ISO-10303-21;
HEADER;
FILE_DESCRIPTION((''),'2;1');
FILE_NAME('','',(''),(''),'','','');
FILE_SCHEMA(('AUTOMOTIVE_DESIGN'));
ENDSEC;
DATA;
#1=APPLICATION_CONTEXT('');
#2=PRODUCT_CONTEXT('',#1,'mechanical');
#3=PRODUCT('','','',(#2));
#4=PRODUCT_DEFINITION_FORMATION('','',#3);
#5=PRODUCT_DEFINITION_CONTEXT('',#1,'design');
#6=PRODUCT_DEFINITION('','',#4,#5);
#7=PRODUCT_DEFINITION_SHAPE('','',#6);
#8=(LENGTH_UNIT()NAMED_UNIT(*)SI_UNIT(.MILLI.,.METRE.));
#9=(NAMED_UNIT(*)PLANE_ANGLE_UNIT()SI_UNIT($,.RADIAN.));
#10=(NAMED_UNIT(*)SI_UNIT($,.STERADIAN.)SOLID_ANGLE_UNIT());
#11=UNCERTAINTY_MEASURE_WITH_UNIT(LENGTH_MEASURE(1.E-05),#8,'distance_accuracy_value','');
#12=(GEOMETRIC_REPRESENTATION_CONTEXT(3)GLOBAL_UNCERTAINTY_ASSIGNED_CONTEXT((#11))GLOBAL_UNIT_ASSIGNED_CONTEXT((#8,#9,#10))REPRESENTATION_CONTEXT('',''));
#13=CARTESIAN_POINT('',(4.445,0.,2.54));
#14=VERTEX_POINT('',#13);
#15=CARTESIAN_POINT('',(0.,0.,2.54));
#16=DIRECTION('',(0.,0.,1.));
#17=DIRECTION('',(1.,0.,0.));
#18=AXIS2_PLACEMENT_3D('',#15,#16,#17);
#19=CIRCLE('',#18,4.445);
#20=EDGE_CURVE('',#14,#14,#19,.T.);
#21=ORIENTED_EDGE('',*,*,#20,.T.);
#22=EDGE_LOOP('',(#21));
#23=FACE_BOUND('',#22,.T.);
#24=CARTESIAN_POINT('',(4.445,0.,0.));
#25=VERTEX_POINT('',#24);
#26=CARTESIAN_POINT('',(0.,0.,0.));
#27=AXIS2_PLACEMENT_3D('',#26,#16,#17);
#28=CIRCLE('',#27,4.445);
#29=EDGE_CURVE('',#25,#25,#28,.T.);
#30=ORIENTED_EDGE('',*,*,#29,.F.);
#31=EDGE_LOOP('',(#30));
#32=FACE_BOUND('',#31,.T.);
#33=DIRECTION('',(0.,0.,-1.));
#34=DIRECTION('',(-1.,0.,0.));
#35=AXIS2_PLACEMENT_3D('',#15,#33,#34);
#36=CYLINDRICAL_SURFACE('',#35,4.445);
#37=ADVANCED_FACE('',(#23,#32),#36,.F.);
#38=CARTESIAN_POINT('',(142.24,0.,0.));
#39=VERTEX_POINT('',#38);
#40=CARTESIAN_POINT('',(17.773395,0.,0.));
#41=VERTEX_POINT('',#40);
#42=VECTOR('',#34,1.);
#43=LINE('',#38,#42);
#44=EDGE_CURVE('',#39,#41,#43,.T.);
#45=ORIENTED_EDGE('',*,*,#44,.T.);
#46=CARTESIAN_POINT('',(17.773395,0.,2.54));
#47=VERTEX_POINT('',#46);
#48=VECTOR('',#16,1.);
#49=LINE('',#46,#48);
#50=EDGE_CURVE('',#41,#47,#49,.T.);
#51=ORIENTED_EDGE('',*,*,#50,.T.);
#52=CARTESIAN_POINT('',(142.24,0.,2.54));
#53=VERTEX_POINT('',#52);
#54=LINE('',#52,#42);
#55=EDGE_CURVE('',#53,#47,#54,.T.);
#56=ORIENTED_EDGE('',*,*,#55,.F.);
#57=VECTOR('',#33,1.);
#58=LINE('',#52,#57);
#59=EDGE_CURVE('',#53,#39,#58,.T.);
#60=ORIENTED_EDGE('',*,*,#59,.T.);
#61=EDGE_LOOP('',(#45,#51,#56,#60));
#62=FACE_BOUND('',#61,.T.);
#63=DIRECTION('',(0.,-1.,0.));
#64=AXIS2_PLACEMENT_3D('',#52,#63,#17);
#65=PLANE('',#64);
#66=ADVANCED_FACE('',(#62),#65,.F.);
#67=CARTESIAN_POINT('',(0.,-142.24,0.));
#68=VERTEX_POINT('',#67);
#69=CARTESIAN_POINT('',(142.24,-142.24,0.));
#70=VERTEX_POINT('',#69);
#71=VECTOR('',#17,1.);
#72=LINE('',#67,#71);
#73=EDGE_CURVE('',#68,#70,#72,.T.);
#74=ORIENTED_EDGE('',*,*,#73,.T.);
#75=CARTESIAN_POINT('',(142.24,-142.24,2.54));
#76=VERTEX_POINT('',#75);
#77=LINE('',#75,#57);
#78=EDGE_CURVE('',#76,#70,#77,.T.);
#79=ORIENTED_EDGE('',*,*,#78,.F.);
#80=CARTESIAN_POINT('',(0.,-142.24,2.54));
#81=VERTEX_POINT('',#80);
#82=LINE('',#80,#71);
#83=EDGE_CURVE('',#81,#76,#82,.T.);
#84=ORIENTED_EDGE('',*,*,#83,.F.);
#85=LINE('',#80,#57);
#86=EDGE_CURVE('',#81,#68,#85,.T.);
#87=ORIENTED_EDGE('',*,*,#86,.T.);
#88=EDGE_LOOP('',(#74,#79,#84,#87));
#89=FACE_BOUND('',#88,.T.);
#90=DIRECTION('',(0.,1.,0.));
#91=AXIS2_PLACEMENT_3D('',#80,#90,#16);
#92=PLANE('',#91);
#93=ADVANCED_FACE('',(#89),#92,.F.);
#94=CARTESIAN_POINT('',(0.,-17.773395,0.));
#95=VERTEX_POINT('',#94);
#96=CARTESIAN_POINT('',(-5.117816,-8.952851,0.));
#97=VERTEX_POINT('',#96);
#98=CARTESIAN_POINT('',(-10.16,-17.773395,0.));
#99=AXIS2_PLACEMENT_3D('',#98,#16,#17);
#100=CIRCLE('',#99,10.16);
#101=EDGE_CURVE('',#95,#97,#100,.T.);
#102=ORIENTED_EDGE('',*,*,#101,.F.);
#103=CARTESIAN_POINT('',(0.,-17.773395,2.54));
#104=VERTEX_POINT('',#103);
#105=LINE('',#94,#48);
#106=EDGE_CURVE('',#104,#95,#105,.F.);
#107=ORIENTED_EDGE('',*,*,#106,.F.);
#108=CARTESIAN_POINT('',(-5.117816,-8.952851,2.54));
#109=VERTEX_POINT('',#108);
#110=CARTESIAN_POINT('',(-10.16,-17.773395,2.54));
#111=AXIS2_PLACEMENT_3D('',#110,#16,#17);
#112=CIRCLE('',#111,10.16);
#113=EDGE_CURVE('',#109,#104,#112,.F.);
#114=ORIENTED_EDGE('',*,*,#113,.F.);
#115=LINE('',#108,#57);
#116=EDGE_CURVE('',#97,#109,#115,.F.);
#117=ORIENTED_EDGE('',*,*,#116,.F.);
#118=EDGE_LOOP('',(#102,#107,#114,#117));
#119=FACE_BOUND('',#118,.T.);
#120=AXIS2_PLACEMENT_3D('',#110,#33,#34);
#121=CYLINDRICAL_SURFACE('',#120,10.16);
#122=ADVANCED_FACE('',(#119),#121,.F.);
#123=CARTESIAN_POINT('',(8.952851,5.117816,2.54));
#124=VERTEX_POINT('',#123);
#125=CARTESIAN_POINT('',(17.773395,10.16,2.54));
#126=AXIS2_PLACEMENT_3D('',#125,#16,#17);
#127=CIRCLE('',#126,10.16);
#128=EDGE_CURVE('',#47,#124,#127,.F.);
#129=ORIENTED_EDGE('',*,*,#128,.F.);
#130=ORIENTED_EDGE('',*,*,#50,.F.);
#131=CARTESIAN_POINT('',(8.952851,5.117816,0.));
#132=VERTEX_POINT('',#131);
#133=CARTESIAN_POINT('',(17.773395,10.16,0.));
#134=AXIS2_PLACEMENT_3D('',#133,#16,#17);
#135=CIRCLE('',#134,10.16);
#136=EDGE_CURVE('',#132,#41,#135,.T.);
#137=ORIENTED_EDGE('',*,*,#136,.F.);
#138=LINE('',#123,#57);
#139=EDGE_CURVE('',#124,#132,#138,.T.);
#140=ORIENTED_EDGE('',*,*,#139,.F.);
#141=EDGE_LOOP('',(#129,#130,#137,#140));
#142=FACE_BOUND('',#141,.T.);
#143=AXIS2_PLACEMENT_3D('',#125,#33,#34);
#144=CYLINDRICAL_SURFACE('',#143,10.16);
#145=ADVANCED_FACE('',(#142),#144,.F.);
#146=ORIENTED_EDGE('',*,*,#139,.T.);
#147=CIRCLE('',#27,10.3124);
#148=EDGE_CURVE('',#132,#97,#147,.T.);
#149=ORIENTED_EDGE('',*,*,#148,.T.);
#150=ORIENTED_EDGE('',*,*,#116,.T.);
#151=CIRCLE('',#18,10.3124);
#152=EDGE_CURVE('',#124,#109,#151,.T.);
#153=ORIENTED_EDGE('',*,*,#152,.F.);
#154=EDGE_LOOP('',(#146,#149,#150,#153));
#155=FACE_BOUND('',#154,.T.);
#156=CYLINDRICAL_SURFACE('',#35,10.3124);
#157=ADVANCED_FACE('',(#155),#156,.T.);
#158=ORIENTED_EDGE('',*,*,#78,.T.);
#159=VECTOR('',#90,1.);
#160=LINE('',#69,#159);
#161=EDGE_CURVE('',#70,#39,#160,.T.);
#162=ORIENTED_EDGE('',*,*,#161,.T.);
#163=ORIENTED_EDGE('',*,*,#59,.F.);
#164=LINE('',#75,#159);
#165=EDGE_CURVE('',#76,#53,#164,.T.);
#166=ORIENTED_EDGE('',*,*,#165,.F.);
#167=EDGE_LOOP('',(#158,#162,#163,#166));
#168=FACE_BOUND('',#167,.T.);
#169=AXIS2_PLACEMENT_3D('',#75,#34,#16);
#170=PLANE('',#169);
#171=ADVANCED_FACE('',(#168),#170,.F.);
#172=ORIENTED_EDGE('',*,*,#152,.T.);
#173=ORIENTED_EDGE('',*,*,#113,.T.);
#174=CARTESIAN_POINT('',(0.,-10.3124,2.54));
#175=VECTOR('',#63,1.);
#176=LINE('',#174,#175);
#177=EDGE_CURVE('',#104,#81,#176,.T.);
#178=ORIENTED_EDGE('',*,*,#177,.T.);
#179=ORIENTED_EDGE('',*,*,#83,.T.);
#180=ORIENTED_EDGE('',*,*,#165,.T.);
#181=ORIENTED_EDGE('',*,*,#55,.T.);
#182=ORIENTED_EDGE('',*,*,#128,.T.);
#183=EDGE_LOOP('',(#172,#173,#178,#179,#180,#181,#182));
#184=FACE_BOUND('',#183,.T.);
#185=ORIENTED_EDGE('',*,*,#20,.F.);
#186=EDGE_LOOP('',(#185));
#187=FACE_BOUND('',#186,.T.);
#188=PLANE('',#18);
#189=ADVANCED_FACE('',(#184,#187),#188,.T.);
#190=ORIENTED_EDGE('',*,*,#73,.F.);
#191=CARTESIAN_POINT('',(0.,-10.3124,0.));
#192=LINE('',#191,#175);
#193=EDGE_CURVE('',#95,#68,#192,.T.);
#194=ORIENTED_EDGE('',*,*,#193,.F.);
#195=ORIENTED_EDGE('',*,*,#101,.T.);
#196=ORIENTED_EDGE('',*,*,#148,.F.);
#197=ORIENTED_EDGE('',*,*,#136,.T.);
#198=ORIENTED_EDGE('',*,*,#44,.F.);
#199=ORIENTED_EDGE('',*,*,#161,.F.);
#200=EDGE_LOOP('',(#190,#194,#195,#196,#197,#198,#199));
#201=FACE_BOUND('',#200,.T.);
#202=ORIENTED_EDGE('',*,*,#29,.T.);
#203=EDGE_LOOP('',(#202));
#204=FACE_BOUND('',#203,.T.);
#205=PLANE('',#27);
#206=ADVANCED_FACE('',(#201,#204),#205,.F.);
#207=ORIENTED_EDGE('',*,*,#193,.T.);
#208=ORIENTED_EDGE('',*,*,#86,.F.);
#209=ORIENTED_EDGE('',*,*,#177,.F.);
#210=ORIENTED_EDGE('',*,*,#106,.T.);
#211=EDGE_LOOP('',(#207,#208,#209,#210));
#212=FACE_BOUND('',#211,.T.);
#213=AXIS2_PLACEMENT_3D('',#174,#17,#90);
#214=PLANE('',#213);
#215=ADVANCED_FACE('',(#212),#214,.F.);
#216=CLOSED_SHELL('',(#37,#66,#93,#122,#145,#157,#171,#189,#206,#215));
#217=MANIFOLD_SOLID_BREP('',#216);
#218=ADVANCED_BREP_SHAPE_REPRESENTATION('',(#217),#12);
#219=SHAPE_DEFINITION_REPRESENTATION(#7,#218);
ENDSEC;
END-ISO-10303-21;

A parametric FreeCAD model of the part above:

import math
import FreeCAD as App
import Part
import Sketcher
from FreeCAD import Vector
Q = App.Units.Quantity


def edges_at(feature, points):
    """Names of the edges that pass closest to the given points."""
    edges = feature.Shape.Edges
    near = lambda p: min(range(len(edges)), key=lambda i: edges[i].distToShape(Part.Vertex(*p))[0])
    return sorted({f"Edge{near(p) + 1}" for p in points})

doc = App.newDocument("Part")
body = doc.addObject("PartDesign::Body", "Body")

# Sketch on XY plane
sketch1 = body.newObject("Sketcher::SketchObject", "Sketch")
sketch1.AttachmentSupport = (doc.getObject("XY_Plane"), [""])
sketch1.MapMode = "FlatFace"
sketch1.addGeometry(Part.LineSegment(Vector(0, -10.3, 0), Vector(0, -142.2, 0)), False)
sketch1.addGeometry(Part.LineSegment(Vector(0, -142.2, 0), Vector(142.2, -142.2, 0)), False)
sketch1.addGeometry(Part.LineSegment(Vector(142.2, -142.2, 0), Vector(142.2, 0, 0)), False)
sketch1.addGeometry(Part.LineSegment(Vector(142.2, 0, 0), Vector(10.3, 0, 0)), False)
sketch1.addGeometry(Part.ArcOfCircle(Part.Circle(Vector(0, 0, 0), Vector(0, 0, 1), 10.3), math.radians(0), math.radians(270)), False)
sketch1.addGeometry(Part.Circle(Vector(0, 0, 0), Vector(0, 0, 1), 4.4), False)
sketch1.addConstraint(Sketcher.Constraint("Coincident", 0, 2, 1, 1))
sketch1.addConstraint(Sketcher.Constraint("Coincident", 1, 2, 2, 1))
sketch1.addConstraint(Sketcher.Constraint("Coincident", 2, 2, 3, 1))
sketch1.addConstraint(Sketcher.Constraint("Coincident", 3, 2, 4, 1))
sketch1.addConstraint(Sketcher.Constraint("Coincident", 4, 2, 0, 1))
sketch1.addConstraint(Sketcher.Constraint("Vertical", 0))
sketch1.addConstraint(Sketcher.Constraint("Horizontal", 1))
sketch1.addConstraint(Sketcher.Constraint("Vertical", 2))
sketch1.addConstraint(Sketcher.Constraint("Horizontal", 3))
sketch1.addConstraint(Sketcher.Constraint("Coincident", 4, 3, -1, 1))
sketch1.addConstraint(Sketcher.Constraint("Coincident", 5, 3, -1, 1))
sketch1.addConstraint(Sketcher.Constraint("PointOnObject", 0, 2, -2))
sketch1.addConstraint(Sketcher.Constraint("PointOnObject", 2, 2, -1))
sketch1.addConstraint(Sketcher.Constraint("Equal", 3, 0))
sketch1.addConstraint(Sketcher.Constraint("Diameter", 5, Q("0.35 in")))
sketch1.addConstraint(Sketcher.Constraint("DistanceX", 1, 1, 1, 2, Q("5.6 in")))
sketch1.addConstraint(Sketcher.Constraint("Radius", 4, Q("0.406 in")))
pad1 = body.newObject("PartDesign::Pad", "Pad")
pad1.Profile = sketch1
pad1.Length = Q("0.1 in")
doc.recompute()

fillet = body.newObject("PartDesign::Fillet", "Fillet")
fillet.Base = (pad1, edges_at(pad1, [(0, -10.312, 1.27), (10.312, 0, 1.27)]))
fillet.Radius = Q("0.4 in")

doc.recompute()
